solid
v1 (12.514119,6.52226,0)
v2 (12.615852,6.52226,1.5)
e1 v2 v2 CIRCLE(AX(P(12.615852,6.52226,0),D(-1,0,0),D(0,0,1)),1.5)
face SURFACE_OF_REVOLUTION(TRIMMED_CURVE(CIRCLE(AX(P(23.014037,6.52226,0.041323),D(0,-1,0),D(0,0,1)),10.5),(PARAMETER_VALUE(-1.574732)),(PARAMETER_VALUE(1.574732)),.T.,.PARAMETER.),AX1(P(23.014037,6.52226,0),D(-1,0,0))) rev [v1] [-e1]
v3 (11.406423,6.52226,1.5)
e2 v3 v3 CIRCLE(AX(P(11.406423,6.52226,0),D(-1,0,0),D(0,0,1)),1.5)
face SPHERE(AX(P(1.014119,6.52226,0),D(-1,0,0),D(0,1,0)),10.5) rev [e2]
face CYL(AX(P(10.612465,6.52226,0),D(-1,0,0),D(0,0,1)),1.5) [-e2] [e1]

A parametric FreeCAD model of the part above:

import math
import FreeCAD as App
import Part
import Sketcher

doc = App.newDocument("Part")
body = doc.addObject("PartDesign::Body", "Body")

sketch1 = doc.addObject("Sketcher::SketchObject", "Sketch")
body.addObject(sketch1)
sketch1.AttachmentSupport = (doc.XY_Plane, [""])
sketch1.MapMode = "FlatFace"
sketch1.addGeometry(Part.LineSegment(App.Vector(11.5, 6.5, 0), App.Vector(12.5, 6.5, 0)), False)
sketch1.addGeometry(Part.ArcOfCircle(Part.Circle(App.Vector(23, 6.6, 0), App.Vector(0, 0, 1), 10.5), math.radians(172.01), math.radians(180.23)), False)
sketch1.addGeometry(Part.LineSegment(App.Vector(12.6, 8, 0), App.Vector(11.4, 8, 0)), False)
sketch1.addGeometry(Part.ArcOfCircle(Part.Circle(App.Vector(1, 6.5, 0), App.Vector(0, 0, 1), 10.5), math.radians(0), math.radians(8.21)), False)
sketch1.addGeometry(Part.LineSegment(App.Vector(1, 6.5, 0), App.Vector(23, 6.5, 0)), True)
sketch1.addConstraint(Sketcher.Constraint("Coincident", 0, 2, 1, 2))
sketch1.addConstraint(Sketcher.Constraint("Coincident", 1, 1, 2, 1))
sketch1.addConstraint(Sketcher.Constraint("Coincident", 2, 2, 3, 2))
sketch1.addConstraint(Sketcher.Constraint("Coincident", 3, 1, 0, 1))
sketch1.addConstraint(Sketcher.Constraint("Horizontal", 0))
sketch1.addConstraint(Sketcher.Constraint("Horizontal", 2))
sketch1.addConstraint(Sketcher.Constraint("Horizontal", 4))
sketch1.addConstraint(Sketcher.Constraint("Coincident", 4, 1, 3, 3))
sketch1.addConstraint(Sketcher.Constraint("Equal", 1, 3))
sketch1.addConstraint(Sketcher.Constraint("Horizontal", 3, 3, 0, 2))
sketch1.addConstraint(Sketcher.Constraint("Vertical", 1, 3, 4, 2))
sketch1.addConstraint(Sketcher.Constraint("Radius", 1, 10.5))
sketch1.addConstraint(Sketcher.Constraint("DistanceX", 0, 1, 0, 2, 1.0))
sketch1.addConstraint(Sketcher.Constraint("DistanceY", 0, 2, 1, 1, 1.5))
sketch1.addConstraint(Sketcher.Constraint("DistanceX", 2, 2, 2, 1, 1.209428))
sketch1.addConstraint(Sketcher.Constraint("DistanceX", -1, 1, 3, 3, 1.014119))
sketch1.addConstraint(Sketcher.Constraint("DistanceY", -1, 1, 3, 3, 6.52226))
revolution = doc.addObject("PartDesign::Revolution", "Revolution")
body.addObject(revolution)
revolution.Profile = sketch1
revolution.ReferenceAxis = (sketch1, ["Axis0"])
revolution.Angle = 360

doc.recompute()
